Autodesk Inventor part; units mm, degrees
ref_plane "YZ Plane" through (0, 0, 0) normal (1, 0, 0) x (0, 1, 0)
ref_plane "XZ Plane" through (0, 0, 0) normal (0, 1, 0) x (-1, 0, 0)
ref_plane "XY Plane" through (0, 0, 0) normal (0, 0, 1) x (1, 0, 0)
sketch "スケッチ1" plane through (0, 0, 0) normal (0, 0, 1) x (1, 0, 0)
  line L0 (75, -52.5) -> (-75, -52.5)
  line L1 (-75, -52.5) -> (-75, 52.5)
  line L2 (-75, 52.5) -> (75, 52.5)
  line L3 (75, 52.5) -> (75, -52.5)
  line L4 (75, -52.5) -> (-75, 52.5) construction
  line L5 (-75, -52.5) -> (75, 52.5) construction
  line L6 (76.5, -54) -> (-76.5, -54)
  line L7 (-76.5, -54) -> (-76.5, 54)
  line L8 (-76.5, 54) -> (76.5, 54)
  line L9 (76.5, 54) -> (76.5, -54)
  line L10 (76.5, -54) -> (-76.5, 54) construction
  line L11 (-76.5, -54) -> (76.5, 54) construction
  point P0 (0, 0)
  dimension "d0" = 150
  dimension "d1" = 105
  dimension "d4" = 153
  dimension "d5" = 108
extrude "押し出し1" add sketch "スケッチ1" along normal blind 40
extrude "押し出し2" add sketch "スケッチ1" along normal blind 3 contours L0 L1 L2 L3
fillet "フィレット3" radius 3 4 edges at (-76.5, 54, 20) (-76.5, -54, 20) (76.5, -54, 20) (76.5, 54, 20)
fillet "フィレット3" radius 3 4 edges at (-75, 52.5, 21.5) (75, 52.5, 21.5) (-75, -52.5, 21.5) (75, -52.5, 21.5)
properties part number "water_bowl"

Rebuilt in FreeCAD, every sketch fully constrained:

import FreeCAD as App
import Part
import Sketcher
from FreeCAD import Vector
Q = App.Units.Quantity


def edges_at(feature, points):
    """Names of the edges that pass closest to the given points."""
    edges = feature.Shape.Edges
    near = lambda p: min(range(len(edges)), key=lambda i: edges[i].distToShape(Part.Vertex(*p))[0])
    return sorted({f"Edge{near(p) + 1}" for p in points})


def add_polygon(sketch, points):
    """Adds a closed chain of lines whose ends are joined by coincident constraints."""
    first, n = sketch.GeometryCount, len(points)
    for a, b in zip(points, points[1:] + points[:1]):
        sketch.addGeometry(Part.LineSegment(App.Vector(*a, 0), App.Vector(*b, 0)), False)
    for i in range(n):
        sketch.addConstraint(Sketcher.Constraint("Coincident", first + i, 2, first + (i + 1) % n, 1))

doc = App.newDocument("Part")
body = doc.addObject("PartDesign::Body", "Body")

sketch1 = doc.addObject("Sketcher::SketchObject", "Sketch")
body.addObject(sketch1)
sketch1.AttachmentSupport = (doc.XY_Plane, [""])
sketch1.MapMode = "FlatFace"
add_polygon(sketch1, [(-76, -54), (76, -54), (76, 54), (-76, 54)])
add_polygon(sketch1, [(75, 52), (75, -52), (-75, -52), (-75, 52)])
sketch1.addConstraint(Sketcher.Constraint("Horizontal", 0))
sketch1.addConstraint(Sketcher.Constraint("Vertical", 1))
sketch1.addConstraint(Sketcher.Constraint("Horizontal", 2))
sketch1.addConstraint(Sketcher.Constraint("Vertical", 3))
sketch1.addConstraint(Sketcher.Constraint("Vertical", 4))
sketch1.addConstraint(Sketcher.Constraint("Horizontal", 5))
sketch1.addConstraint(Sketcher.Constraint("Vertical", 6))
sketch1.addConstraint(Sketcher.Constraint("Horizontal", 7))
sketch1.addConstraint(Sketcher.Constraint("Symmetric", 0, 2, 2, 2, -1, 1))
sketch1.addConstraint(Sketcher.Constraint("Symmetric", 4, 2, 6, 2, -1, 1))
sketch1.addConstraint(Sketcher.Constraint("DistanceX", 0, 1, 0, 2, Q("153 mm")))
sketch1.addConstraint(Sketcher.Constraint("DistanceX", 5, 2, 5, 1, Q("150 mm")))
sketch1.addConstraint(Sketcher.Constraint("DistanceY", 1, 1, 1, 2, Q("108 mm")))
sketch1.addConstraint(Sketcher.Constraint("DistanceY", 4, 2, 4, 1, Q("105 mm")))
pad1 = doc.addObject("PartDesign::Pad", "Pad")
body.addObject(pad1)
pad1.Profile = sketch1
pad1.Length = 40

sketch2 = doc.addObject("Sketcher::SketchObject", "Sketch001")
body.addObject(sketch2)
sketch2.AttachmentSupport = (doc.XY_Plane, [""])
sketch2.MapMode = "FlatFace"
add_polygon(sketch2, [(-75, -52), (75, -52), (75, 52), (-75, 52)])
sketch2.addConstraint(Sketcher.Constraint("Horizontal", 0))
sketch2.addConstraint(Sketcher.Constraint("Vertical", 1))
sketch2.addConstraint(Sketcher.Constraint("Horizontal", 2))
sketch2.addConstraint(Sketcher.Constraint("Vertical", 3))
sketch2.addConstraint(Sketcher.Constraint("Symmetric", 0, 2, 2, 2, -1, 1))
sketch2.addConstraint(Sketcher.Constraint("DistanceX", 0, 1, 0, 2, Q("150 mm")))
sketch2.addConstraint(Sketcher.Constraint("DistanceY", 1, 1, 1, 2, Q("105 mm")))
pad2 = doc.addObject("PartDesign::Pad", "Pad001")
body.addObject(pad2)
pad2.Profile = sketch2
pad2.Length = 3
doc.recompute()

fillet = doc.addObject("PartDesign::Fillet", "Fillet")
body.addObject(fillet)
fillet.Base = (pad2, edges_at(pad2, [
    (-76.5, 54, 20),
    (-76.5, -54, 20),
    (76.5, -54, 20),
    (76.5, 54, 20),
]))
fillet.Radius = 3
doc.recompute()

fillet2 = doc.addObject("PartDesign::Fillet", "Fillet001")
body.addObject(fillet2)
fillet2.Base = (fillet, edges_at(fillet, [
    (-75, 52.5, 21.5),
    (75, 52.5, 21.5),
    (-75, -52.5, 21.5),
    (75, -52.5, 21.5),
]))
fillet2.Radius = 3

doc.recompute()
